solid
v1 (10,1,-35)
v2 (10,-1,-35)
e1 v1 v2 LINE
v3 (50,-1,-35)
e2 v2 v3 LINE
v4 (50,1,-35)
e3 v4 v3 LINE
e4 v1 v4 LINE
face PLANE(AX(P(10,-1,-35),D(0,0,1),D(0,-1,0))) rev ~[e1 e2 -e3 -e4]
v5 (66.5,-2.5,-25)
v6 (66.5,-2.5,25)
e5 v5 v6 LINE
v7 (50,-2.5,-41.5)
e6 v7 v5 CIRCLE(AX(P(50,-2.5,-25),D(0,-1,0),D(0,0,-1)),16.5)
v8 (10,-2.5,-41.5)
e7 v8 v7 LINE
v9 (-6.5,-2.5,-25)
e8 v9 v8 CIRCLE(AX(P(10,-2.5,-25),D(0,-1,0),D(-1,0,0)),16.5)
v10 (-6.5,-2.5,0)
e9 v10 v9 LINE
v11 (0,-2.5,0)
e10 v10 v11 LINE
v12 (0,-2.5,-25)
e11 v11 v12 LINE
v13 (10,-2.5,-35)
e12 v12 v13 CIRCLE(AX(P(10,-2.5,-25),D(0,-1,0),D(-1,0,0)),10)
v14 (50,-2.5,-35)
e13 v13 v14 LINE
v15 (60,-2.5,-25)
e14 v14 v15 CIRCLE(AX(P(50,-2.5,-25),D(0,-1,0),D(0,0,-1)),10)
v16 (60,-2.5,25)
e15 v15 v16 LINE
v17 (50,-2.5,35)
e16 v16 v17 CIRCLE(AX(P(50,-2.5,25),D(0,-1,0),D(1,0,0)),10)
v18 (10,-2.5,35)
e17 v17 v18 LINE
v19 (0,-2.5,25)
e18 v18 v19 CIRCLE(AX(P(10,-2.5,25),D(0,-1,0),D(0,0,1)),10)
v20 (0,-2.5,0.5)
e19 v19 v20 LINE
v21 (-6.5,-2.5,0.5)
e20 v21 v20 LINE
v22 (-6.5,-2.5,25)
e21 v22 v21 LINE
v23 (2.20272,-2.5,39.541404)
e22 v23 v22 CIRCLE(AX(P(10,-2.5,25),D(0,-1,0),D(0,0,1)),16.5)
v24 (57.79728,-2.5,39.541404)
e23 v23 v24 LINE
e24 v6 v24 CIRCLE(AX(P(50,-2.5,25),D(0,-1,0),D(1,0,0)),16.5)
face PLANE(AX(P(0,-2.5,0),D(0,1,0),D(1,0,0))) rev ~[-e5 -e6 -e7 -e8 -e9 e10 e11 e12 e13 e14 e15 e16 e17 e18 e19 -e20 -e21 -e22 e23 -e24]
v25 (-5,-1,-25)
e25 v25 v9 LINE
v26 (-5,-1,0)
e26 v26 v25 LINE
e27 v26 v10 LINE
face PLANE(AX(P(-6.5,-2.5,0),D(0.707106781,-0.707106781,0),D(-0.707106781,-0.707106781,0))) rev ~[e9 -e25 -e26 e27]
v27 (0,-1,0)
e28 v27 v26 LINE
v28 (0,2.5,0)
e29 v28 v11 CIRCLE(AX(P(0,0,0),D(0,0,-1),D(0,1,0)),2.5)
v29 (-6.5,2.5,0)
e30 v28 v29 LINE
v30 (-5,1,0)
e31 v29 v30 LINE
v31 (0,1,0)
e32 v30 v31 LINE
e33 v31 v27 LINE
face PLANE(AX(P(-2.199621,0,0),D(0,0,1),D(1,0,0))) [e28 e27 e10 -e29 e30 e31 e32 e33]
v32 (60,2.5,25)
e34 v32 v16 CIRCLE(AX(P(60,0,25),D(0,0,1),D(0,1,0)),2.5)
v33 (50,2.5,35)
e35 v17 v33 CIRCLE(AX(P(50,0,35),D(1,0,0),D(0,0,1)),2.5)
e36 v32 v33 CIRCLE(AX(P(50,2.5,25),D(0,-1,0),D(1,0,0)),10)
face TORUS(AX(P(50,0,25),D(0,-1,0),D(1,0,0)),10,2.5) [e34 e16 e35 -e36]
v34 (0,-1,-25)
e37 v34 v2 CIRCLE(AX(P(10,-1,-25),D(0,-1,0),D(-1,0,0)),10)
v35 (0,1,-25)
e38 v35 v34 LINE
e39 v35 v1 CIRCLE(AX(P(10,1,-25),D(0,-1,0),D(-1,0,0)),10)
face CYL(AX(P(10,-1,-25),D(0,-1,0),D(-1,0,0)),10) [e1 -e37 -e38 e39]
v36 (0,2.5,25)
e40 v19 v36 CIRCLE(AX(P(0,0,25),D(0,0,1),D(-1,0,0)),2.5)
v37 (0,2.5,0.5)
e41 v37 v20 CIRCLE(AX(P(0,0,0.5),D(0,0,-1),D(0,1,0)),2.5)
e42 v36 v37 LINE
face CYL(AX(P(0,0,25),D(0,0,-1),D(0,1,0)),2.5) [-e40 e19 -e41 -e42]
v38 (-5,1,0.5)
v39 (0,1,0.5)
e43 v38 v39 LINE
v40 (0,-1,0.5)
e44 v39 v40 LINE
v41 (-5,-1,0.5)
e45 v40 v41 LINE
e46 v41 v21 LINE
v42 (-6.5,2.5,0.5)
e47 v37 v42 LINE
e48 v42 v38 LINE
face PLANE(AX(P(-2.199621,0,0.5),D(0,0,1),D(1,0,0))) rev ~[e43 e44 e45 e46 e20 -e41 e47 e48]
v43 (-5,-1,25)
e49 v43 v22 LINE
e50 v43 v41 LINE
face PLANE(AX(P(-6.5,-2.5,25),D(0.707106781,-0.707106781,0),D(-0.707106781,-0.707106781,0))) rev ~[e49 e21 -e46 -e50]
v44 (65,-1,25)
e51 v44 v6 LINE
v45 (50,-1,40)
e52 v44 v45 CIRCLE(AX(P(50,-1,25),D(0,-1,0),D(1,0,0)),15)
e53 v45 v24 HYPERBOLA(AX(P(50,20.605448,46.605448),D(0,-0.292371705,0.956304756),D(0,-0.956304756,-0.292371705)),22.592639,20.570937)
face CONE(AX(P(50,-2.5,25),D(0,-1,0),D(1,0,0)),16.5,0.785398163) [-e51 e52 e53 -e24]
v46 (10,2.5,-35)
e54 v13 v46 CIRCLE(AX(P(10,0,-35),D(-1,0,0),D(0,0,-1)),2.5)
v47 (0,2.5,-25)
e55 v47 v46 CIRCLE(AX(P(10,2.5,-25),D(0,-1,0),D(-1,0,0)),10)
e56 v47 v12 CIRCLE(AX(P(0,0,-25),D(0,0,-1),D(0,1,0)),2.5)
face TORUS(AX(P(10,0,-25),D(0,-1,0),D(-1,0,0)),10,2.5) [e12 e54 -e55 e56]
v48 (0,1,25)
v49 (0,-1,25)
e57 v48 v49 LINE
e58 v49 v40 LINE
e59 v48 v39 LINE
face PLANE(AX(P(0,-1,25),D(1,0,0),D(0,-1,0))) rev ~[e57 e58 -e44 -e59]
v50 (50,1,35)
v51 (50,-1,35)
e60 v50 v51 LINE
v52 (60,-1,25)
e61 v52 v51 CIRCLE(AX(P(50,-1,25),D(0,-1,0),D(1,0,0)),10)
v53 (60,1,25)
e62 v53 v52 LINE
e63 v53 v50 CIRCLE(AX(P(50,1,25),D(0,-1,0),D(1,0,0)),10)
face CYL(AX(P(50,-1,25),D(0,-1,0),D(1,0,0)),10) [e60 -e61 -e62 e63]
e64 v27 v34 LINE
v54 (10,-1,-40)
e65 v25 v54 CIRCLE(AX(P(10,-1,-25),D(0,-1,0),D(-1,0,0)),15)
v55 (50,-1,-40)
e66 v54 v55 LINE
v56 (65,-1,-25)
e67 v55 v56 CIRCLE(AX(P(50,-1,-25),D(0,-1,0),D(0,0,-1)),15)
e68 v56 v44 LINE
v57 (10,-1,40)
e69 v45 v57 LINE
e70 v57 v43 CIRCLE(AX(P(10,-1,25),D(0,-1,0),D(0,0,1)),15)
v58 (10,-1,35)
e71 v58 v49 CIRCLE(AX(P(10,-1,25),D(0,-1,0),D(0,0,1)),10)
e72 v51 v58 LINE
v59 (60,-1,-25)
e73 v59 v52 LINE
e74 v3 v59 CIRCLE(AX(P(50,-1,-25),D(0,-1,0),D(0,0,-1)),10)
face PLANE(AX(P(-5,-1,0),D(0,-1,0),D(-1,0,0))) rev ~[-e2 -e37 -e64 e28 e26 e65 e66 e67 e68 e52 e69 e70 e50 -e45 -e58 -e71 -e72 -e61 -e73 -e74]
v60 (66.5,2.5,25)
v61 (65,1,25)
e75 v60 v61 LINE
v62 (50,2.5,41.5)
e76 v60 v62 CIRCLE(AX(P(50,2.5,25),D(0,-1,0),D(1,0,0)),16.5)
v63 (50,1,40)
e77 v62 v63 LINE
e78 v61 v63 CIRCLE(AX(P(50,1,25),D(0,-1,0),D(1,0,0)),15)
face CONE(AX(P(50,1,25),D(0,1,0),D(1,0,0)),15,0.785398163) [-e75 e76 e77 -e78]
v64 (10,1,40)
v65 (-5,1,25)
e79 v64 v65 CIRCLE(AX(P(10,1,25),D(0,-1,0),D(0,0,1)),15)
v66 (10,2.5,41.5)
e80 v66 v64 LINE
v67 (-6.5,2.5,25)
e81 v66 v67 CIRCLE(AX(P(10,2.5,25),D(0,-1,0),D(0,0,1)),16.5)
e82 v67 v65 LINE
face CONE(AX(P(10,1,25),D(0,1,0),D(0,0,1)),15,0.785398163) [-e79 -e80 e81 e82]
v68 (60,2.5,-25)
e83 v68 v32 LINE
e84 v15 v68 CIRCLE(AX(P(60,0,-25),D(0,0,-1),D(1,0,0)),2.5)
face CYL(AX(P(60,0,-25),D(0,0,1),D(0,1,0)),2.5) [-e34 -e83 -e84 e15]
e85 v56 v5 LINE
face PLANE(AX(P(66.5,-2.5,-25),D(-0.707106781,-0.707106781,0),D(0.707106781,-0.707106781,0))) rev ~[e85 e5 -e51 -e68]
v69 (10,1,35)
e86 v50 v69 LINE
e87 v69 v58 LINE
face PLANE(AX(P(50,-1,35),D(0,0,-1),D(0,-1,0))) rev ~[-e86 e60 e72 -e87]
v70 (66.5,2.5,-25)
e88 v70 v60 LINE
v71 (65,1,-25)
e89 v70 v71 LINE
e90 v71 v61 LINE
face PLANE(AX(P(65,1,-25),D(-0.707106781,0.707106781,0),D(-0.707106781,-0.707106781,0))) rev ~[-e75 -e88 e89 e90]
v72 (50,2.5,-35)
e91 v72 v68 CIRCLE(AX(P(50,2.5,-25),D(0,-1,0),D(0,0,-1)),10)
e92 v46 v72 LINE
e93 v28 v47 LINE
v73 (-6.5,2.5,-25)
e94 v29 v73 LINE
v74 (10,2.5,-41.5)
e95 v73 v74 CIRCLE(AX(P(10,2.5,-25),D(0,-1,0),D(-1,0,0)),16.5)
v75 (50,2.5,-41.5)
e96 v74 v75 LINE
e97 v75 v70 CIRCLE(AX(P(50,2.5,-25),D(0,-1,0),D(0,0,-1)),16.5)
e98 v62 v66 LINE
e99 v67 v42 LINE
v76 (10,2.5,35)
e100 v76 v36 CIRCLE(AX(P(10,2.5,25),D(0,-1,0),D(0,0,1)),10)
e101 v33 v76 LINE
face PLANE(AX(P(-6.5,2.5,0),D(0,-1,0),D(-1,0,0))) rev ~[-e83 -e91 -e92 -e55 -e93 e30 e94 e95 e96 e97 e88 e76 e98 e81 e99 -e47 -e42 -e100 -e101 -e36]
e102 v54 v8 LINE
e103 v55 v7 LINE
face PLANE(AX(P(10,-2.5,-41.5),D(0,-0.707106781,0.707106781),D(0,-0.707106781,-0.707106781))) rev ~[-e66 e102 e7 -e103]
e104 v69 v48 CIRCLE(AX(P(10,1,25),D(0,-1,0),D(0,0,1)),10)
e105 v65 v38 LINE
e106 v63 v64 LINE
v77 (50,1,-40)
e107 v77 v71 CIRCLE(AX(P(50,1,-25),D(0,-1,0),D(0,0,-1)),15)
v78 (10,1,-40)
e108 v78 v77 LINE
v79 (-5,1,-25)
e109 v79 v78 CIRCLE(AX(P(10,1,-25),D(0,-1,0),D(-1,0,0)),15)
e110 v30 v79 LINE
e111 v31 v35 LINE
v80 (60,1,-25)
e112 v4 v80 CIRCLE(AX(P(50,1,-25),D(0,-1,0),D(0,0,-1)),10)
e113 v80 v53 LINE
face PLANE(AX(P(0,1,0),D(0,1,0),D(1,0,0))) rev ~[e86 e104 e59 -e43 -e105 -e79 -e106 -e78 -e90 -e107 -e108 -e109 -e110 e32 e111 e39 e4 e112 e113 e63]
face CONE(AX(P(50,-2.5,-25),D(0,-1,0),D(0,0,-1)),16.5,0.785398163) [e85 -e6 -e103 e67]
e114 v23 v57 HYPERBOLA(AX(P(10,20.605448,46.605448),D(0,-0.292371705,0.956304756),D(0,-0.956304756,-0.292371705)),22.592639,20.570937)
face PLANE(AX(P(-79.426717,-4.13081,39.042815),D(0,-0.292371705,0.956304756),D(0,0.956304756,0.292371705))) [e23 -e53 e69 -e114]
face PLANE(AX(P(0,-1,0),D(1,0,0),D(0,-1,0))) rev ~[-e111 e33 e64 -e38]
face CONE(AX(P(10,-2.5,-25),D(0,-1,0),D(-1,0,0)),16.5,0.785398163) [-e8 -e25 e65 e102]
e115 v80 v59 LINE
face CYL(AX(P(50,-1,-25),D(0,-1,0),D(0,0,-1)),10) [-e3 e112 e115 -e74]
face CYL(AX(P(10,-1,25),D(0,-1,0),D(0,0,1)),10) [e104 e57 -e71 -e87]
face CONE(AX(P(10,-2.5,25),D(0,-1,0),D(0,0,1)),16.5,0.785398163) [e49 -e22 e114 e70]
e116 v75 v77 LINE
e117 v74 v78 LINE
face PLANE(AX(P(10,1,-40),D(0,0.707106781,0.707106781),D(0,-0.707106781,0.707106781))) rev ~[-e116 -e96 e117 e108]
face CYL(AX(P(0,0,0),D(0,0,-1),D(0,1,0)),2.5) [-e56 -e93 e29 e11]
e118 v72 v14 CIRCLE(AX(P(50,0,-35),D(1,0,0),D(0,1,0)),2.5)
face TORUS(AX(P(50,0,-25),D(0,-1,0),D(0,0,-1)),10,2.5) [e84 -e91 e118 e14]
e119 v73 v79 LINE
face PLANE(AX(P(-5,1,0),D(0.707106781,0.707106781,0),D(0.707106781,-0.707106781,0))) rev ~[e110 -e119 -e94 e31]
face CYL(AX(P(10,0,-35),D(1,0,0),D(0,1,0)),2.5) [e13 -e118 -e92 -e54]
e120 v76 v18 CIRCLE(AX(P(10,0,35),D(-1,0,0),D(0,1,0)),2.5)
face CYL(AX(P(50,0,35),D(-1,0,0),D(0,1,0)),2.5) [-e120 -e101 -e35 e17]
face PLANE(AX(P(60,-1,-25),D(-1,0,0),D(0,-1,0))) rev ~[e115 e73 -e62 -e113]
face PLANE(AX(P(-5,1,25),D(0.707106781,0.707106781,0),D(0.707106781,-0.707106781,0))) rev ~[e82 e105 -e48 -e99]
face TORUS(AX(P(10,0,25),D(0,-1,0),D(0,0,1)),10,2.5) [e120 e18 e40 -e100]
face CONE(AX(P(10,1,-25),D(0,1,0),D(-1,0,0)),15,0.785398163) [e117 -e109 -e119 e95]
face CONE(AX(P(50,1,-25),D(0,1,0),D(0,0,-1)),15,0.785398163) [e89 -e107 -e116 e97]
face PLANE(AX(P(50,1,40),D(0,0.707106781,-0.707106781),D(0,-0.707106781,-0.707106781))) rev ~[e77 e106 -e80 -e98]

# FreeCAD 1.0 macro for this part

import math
import FreeCAD as App
import Part
import Sketcher

V = App.Vector
Q = App.Units.Quantity


def add_polygon(sketch, points):
    """Adds a closed chain of lines whose ends are joined by coincident constraints."""
    first, n = sketch.GeometryCount, len(points)
    for a, b in zip(points, points[1:] + points[:1]):
        sketch.addGeometry(Part.LineSegment(App.Vector(*a, 0), App.Vector(*b, 0)), False)
    for i in range(n):
        sketch.addConstraint(Sketcher.Constraint("Coincident", first + i, 2, first + (i + 1) % n, 1))

doc = App.newDocument("Part")
params = doc.addObject("Spreadsheet::Sheet", "Params")
for row, (alias, value) in enumerate([
    ("sketch1_radius", "2.5 mm"),
    ("sketch1_width", "5 mm"),
    ("sketch1_height", "2 mm"),
    ("sketch2_radius", "10 mm"),
    ("sketch2_width", "40 mm"),
    ("sketch2_height", "25 mm"),
    ("sketch2_height2", "24.5 mm"),
], start=1):
    params.set(f"A{row}", alias)
    params.set(f"B{row}", "=" + value)
    params.setAlias(f"B{row}", alias)

body = doc.addObject("PartDesign::Body", "Body")

sketch1 = doc.addObject("Sketcher::SketchObject", "Sketch")
body.addObject(sketch1)
sketch1.AttachmentSupport = (doc.XY_Plane, [""])
sketch1.MapMode = "FlatFace"
sketch1.addGeometry(Part.LineSegment(V(0, 1, 0), V(0, -1, 0)), False)
sketch1.addGeometry(Part.LineSegment(V(0, -1, 0), V(-5, -1, 0)), False)
sketch1.addGeometry(Part.LineSegment(V(-5, -1, 0), V(-6.5, -2.5, 0)), False)
sketch1.addGeometry(Part.LineSegment(V(-6.5, -2.5, 0), V(0, -2.5, 0)), False)
sketch1.addGeometry(Part.ArcOfCircle(Part.Circle(V(0, 0, 0), V(0, 0, 1), 2.5), math.radians(-90), math.radians(90)), False)
sketch1.addGeometry(Part.LineSegment(V(0, 2.5, 0), V(-6.5, 2.5, 0)), False)
sketch1.addGeometry(Part.LineSegment(V(-6.5, 2.5, 0), V(-5, 1, 0)), False)
sketch1.addGeometry(Part.LineSegment(V(-5, 1, 0), V(0, 1, 0)), False)
sketch1.addConstraint(Sketcher.Constraint("Coincident", 0, 2, 1, 1))
sketch1.addConstraint(Sketcher.Constraint("Coincident", 1, 2, 2, 1))
sketch1.addConstraint(Sketcher.Constraint("Coincident", 2, 2, 3, 1))
sketch1.addConstraint(Sketcher.Constraint("Tangent", 3, 2, 4, 1))
sketch1.addConstraint(Sketcher.Constraint("Tangent", 4, 2, 5, 1))
sketch1.addConstraint(Sketcher.Constraint("Coincident", 5, 2, 6, 1))
sketch1.addConstraint(Sketcher.Constraint("Coincident", 6, 2, 7, 1))
sketch1.addConstraint(Sketcher.Constraint("Coincident", 7, 2, 0, 1))
sketch1.addConstraint(Sketcher.Constraint("Vertical", 0))
sketch1.addConstraint(Sketcher.Constraint("Horizontal", 1))
sketch1.addConstraint(Sketcher.Constraint("Horizontal", 3))
sketch1.addConstraint(Sketcher.Constraint("Horizontal", 5))
sketch1.addConstraint(Sketcher.Constraint("Horizontal", 7))
sketch1.addConstraint(Sketcher.Constraint("Coincident", 4, 3, -1, 1))
sketch1.addConstraint(Sketcher.Constraint("Symmetric", 0, 2, 7, 2, -1, 1))
sketch1.addConstraint(Sketcher.Constraint("Perpendicular", 2, 6))
sketch1.addConstraint(Sketcher.Constraint("Vertical", 2, 2, 5, 2))
sketch1.addConstraint(Sketcher.Constraint("Vertical", 1, 2, 6, 2))
sketch1.addConstraint(Sketcher.Constraint("Radius", 4, Q("2.5 mm")))
sketch1.addConstraint(Sketcher.Constraint("DistanceX", 1, 2, 1, 1, Q("5 mm")))
sketch1.addConstraint(Sketcher.Constraint("DistanceY", 0, 2, 0, 1, Q("2 mm")))
sketch1.setExpression("Constraints[18]", "Params.sketch1_radius")
sketch1.setExpression("Constraints[19]", "Params.sketch1_width")
sketch1.setExpression("Constraints[20]", "Params.sketch1_height")

sketch2 = doc.addObject("Sketcher::SketchObject", "Sketch001")
body.addObject(sketch2)
sketch2.AttachmentSupport = (doc.XZ_Plane, [""])
sketch2.MapMode = "FlatFace"
sketch2.addGeometry(Part.LineSegment(V(0, 0, 0), V(0, -25, 0)), False)
sketch2.addGeometry(Part.ArcOfCircle(Part.Circle(V(10, -25, 0), V(0, 0, 1), 10), math.radians(180), math.radians(270)), False)
sketch2.addGeometry(Part.LineSegment(V(10, -35, 0), V(50, -35, 0)), False)
sketch2.addGeometry(Part.ArcOfCircle(Part.Circle(V(50, -25, 0), V(0, 0, 1), 10), math.radians(-90), math.radians(0)), False)
sketch2.addGeometry(Part.LineSegment(V(60, -25, 0), V(60, 25, 0)), False)
sketch2.addGeometry(Part.ArcOfCircle(Part.Circle(V(50, 25, 0), V(0, 0, 1), 10), math.radians(0), math.radians(90)), False)
sketch2.addGeometry(Part.LineSegment(V(50, 35, 0), V(10, 35, 0)), False)
sketch2.addGeometry(Part.ArcOfCircle(Part.Circle(V(10, 25, 0), V(0, 0, 1), 10), math.radians(90), math.radians(180)), False)
sketch2.addGeometry(Part.LineSegment(V(0, 25, 0), V(0, 0.5, 0)), False)
sketch2.addConstraint(Sketcher.Constraint("Tangent", 0, 2, 1, 1))
sketch2.addConstraint(Sketcher.Constraint("Tangent", 1, 2, 2, 1))
sketch2.addConstraint(Sketcher.Constraint("Tangent", 2, 2, 3, 1))
sketch2.addConstraint(Sketcher.Constraint("Tangent", 3, 2, 4, 1))
sketch2.addConstraint(Sketcher.Constraint("Tangent", 4, 2, 5, 1))
sketch2.addConstraint(Sketcher.Constraint("Tangent", 5, 2, 6, 1))
sketch2.addConstraint(Sketcher.Constraint("Tangent", 6, 2, 7, 1))
sketch2.addConstraint(Sketcher.Constraint("Tangent", 7, 2, 8, 1))
sketch2.addConstraint(Sketcher.Constraint("Vertical", 0))
sketch2.addConstraint(Sketcher.Constraint("Horizontal", 2))
sketch2.addConstraint(Sketcher.Constraint("Vertical", 4))
sketch2.addConstraint(Sketcher.Constraint("Horizontal", 6))
sketch2.addConstraint(Sketcher.Constraint("Vertical", 8))
sketch2.addConstraint(Sketcher.Constraint("Coincident", 0, 1, -1, 1))
sketch2.addConstraint(Sketcher.Constraint("Equal", 1, 3))
sketch2.addConstraint(Sketcher.Constraint("Equal", 3, 5))
sketch2.addConstraint(Sketcher.Constraint("Equal", 5, 7))
sketch2.addConstraint(Sketcher.Constraint("Symmetric", 0, 2, 7, 2, -1, 1))
sketch2.addConstraint(Sketcher.Constraint("Radius", 1, Q("10 mm")))
sketch2.addConstraint(Sketcher.Constraint("DistanceX", 2, 1, 2, 2, Q("40 mm")))
sketch2.addConstraint(Sketcher.Constraint("DistanceY", 0, 2, 0, 1, Q("25 mm")))
sketch2.addConstraint(Sketcher.Constraint("DistanceY", 8, 2, 8, 1, Q("24.5 mm")))
sketch2.setExpression("Constraints[18]", "Params.sketch2_radius")
sketch2.setExpression("Constraints[19]", "Params.sketch2_width")
sketch2.setExpression("Constraints[20]", "Params.sketch2_height")
sketch2.setExpression("Constraints[21]", "Params.sketch2_height2")
doc.recompute()

additivepipe = doc.addObject("PartDesign::AdditivePipe", "AdditivePipe")
body.addObject(additivepipe)
additivepipe.Profile = sketch1
additivepipe.Spine = (sketch2, ["Edge1", "Edge2", "Edge3", "Edge4", "Edge5", "Edge6", "Edge7", "Edge8", "Edge9"])

sketch3 = doc.addObject("Sketcher::SketchObject", "Sketch002")
body.addObject(sketch3)
sketch3.AttachmentSupport = (doc.YZ_Plane, [""])
sketch3.MapMode = "FlatFace"
add_polygon(sketch3, [(-1, 40), (-1, 43.956586), (-4.13081, 43.956586), (-4.13081, 39.042815)])
sketch3.addConstraint(Sketcher.Constraint("Vertical", 0))
sketch3.addConstraint(Sketcher.Constraint("Horizontal", 1))
sketch3.addConstraint(Sketcher.Constraint("Vertical", 2))
sketch3.addConstraint(Sketcher.Constraint("Angle", 3, Q("17 deg")))
sketch3.addConstraint(Sketcher.Constraint("DistanceX", 0, 2, -1, 1, Q("1 mm")))
sketch3.addConstraint(Sketcher.Constraint("DistanceY", -1, 1, 3, 2, Q("40 mm")))
sketch3.addConstraint(Sketcher.Constraint("DistanceX", 1, 2, 1, 1, Q("3.13081 mm")))
sketch3.addConstraint(Sketcher.Constraint("DistanceY", 2, 2, 2, 1, Q("4.913771 mm")))
pocket1 = doc.addObject("PartDesign::Pocket", "Pocket")
body.addObject(pocket1)
pocket1.Profile = sketch3
pocket1.Type = "ThroughAll"
pocket1.Midplane = True

doc.recompute()
